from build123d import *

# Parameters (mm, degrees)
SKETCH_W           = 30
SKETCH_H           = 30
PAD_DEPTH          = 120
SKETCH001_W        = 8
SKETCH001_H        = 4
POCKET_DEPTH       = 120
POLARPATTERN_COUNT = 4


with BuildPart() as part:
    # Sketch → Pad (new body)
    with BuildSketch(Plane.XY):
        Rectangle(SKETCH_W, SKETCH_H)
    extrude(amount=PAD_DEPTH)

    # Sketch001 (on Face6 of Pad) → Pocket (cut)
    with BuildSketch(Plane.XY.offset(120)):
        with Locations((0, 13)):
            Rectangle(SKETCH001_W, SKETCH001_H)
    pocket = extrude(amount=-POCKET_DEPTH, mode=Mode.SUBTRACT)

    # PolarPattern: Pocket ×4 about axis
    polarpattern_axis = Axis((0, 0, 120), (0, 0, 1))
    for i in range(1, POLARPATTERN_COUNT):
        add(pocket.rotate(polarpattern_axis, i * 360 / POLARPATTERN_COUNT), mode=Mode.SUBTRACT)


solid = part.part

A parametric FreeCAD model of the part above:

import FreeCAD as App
import Part
import Sketcher
from FreeCAD import Vector


def add_polygon(sketch, points):
    """Adds a closed chain of lines whose ends are joined by coincident constraints."""
    first, n = sketch.GeometryCount, len(points)
    for a, b in zip(points, points[1:] + points[:1]):
        sketch.addGeometry(Part.LineSegment(App.Vector(*a, 0), App.Vector(*b, 0)), False)
    for i in range(n):
        sketch.addConstraint(Sketcher.Constraint("Coincident", first + i, 2, first + (i + 1) % n, 1))

doc = App.newDocument("Part")
body = doc.addObject("PartDesign::Body", "Body")

# Sketch on XY plane
sketch1 = doc.addObject("Sketcher::SketchObject", "Sketch")
body.addObject(sketch1)
sketch1.AttachmentSupport = (doc.XY_Plane, [""])
sketch1.MapMode = "FlatFace"
add_polygon(sketch1, [(-15, 15), (-15, -15), (15, -15), (15, 15)])  # lines 0-3
sketch1.addConstraint([
    Sketcher.Constraint("Vertical", 0),
    Sketcher.Constraint("Horizontal", 1),
    Sketcher.Constraint("Vertical", 2),
    Sketcher.Constraint("Horizontal", 3),
    Sketcher.Constraint("Symmetric", 0, 2, 2, 2, -1, 1),
    Sketcher.Constraint("Equal", 3, 0),
    Sketcher.Constraint("DistanceX", 1, 1, 1, 2, 30.0),
])
pad1 = doc.addObject("PartDesign::Pad", "Pad")
body.addObject(pad1)
pad1.Profile = sketch1
pad1.Length = 120

# Sketch on XY plane
sketch2 = doc.addObject("Sketcher::SketchObject", "Sketch001")
body.addObject(sketch2)
sketch2.AttachmentSupport = (doc.XY_Plane, [""])
sketch2.MapMode = "FlatFace"
sketch2.AttachmentOffset = App.Placement(Vector(0, 0, 120), App.Rotation())
add_polygon(sketch2, [(-4, 15), (-4, 11), (4, 11), (4, 15)])  # lines 0-3
sketch2.addConstraint([
    Sketcher.Constraint("Vertical", 0),
    Sketcher.Constraint("Horizontal", 1),
    Sketcher.Constraint("Vertical", 2),
    Sketcher.Constraint("Horizontal", 3),
    Sketcher.Constraint("DistanceX", 1, 1, 1, 2, 8.0),
    Sketcher.Constraint("DistanceY", 0, 2, 0, 1, 4.0),
    Sketcher.Constraint("DistanceX", 0, 2, -1, 1, 4.0),
    Sketcher.Constraint("DistanceY", -1, 1, 0, 2, 11.0),
])
pocket1 = doc.addObject("PartDesign::Pocket", "Pocket")
body.addObject(pocket1)
pocket1.Profile = sketch2
pocket1.Length = 120
doc.recompute()

polarpattern = doc.addObject("PartDesign::PolarPattern", "PolarPattern")
body.addObject(polarpattern)
polarpattern.Originals = [pocket1]
polarpattern.Axis = (doc.Z_Axis, [""])
polarpattern.Angle = 360
polarpattern.Occurrences = 4
body.Tip = polarpattern

doc.recompute()
